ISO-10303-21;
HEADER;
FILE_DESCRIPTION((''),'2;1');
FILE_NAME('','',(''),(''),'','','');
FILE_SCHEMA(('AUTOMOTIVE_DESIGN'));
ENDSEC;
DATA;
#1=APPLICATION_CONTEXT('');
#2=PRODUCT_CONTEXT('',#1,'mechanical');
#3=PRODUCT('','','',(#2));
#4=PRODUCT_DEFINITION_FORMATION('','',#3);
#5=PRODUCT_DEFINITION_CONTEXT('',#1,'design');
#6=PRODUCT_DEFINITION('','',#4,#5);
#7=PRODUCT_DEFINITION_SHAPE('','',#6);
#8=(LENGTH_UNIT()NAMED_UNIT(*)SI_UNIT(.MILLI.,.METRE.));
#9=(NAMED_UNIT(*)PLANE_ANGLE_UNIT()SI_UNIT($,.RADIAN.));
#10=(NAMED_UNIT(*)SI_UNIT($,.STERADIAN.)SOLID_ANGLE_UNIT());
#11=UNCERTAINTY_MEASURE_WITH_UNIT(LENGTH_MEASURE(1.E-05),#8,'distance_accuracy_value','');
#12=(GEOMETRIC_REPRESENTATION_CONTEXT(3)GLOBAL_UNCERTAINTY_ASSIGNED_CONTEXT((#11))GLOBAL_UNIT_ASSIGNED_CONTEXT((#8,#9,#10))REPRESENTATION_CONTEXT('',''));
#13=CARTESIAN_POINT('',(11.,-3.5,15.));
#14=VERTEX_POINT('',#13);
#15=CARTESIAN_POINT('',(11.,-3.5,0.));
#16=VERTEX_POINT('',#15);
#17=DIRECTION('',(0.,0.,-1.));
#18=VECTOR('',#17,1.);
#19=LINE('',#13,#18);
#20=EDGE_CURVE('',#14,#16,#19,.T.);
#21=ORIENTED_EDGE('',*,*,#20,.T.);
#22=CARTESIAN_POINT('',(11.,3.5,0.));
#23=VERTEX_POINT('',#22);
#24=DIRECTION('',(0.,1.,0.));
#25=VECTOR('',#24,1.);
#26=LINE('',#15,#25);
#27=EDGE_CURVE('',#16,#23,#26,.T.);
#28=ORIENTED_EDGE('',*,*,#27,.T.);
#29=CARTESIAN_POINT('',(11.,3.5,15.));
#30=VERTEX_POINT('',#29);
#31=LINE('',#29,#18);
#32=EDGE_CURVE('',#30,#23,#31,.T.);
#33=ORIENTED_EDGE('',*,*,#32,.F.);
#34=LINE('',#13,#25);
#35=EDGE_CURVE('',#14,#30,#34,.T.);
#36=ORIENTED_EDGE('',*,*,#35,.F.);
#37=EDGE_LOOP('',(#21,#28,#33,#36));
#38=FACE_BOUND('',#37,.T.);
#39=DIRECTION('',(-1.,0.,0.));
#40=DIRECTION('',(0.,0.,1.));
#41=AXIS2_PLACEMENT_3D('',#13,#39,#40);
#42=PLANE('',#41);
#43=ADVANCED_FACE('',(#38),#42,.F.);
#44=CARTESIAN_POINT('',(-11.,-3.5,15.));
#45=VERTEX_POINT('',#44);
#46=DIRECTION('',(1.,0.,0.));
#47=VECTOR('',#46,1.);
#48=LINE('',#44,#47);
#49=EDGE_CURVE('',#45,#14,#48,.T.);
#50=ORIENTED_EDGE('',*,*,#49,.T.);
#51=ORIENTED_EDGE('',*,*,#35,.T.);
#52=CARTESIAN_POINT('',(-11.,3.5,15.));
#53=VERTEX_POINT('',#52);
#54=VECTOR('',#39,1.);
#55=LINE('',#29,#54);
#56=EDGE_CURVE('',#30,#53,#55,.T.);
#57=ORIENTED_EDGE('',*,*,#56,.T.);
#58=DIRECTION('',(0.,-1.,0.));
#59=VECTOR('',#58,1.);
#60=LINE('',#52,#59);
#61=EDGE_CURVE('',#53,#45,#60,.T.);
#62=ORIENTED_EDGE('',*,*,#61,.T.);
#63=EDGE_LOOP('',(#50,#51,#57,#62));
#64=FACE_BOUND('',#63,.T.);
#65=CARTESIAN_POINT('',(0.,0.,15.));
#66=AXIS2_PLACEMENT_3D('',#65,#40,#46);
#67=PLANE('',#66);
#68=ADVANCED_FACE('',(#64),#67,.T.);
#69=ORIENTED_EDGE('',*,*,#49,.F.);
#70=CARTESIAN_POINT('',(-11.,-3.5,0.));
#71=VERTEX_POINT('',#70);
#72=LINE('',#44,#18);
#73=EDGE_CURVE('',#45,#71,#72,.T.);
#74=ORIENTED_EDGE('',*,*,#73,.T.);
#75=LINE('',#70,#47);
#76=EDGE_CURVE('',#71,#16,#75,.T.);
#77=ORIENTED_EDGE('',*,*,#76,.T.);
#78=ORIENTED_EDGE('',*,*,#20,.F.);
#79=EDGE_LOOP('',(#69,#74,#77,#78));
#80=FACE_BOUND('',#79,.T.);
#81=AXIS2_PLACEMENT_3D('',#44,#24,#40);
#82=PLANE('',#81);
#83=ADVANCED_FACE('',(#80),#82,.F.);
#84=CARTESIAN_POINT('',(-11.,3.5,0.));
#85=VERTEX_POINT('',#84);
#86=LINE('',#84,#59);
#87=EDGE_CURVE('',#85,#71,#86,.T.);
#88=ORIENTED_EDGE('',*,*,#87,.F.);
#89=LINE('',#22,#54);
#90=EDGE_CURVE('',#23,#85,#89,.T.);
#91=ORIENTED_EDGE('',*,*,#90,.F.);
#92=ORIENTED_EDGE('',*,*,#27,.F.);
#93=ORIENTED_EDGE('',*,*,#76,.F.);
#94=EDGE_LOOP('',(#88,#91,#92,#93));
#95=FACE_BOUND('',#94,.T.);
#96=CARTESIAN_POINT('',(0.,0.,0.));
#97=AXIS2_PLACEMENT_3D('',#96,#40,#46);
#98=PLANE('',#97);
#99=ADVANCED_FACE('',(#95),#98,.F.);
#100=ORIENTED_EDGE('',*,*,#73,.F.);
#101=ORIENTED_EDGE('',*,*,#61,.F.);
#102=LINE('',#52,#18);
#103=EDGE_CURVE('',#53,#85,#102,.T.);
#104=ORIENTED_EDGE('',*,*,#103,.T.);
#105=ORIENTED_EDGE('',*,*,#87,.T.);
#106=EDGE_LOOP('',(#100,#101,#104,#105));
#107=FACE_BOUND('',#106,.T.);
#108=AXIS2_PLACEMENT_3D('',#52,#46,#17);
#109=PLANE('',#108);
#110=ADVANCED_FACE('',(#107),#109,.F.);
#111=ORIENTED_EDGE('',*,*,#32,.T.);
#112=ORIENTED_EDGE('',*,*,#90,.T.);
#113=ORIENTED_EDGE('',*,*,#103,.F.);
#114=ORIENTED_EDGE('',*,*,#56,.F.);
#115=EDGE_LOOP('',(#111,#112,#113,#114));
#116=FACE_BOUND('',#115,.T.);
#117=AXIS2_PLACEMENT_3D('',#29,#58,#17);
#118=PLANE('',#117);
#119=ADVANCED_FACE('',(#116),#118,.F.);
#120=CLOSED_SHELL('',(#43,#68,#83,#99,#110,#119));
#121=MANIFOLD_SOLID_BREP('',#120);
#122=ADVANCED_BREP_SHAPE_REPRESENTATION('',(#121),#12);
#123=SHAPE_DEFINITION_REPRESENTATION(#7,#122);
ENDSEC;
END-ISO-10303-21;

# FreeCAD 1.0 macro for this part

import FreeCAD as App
import Part
import Sketcher
from FreeCAD import Vector
Q = App.Units.Quantity

doc = App.newDocument("Part")
body = doc.addObject("PartDesign::Body", "Body")

sketch1 = body.newObject("Sketcher::SketchObject", "Sketch")
sketch1.AttachmentSupport = (doc.getObject("XY_Plane"), [""])
sketch1.MapMode = "FlatFace"
sketch1.addGeometry([
    Part.LineSegment(Vector(-11, 4, 0), Vector(-11, -4, 0)),
    Part.LineSegment(Vector(-11, -4, 0), Vector(11, -4, 0)),
    Part.LineSegment(Vector(11, -4, 0), Vector(11, 4, 0)),
    Part.LineSegment(Vector(11, 4, 0), Vector(-11, 4, 0)),
], False)
sketch1.addConstraint([
    Sketcher.Constraint("Coincident", 0, 2, 1, 1),
    Sketcher.Constraint("Coincident", 1, 2, 2, 1),
    Sketcher.Constraint("Coincident", 2, 2, 3, 1),
    Sketcher.Constraint("Coincident", 3, 2, 0, 1),
    Sketcher.Constraint("Vertical", 0),
    Sketcher.Constraint("Horizontal", 1),
    Sketcher.Constraint("Vertical", 2),
    Sketcher.Constraint("Horizontal", 3),
    Sketcher.Constraint("Symmetric", 0, 2, 2, 2, -1, 1),
    Sketcher.Constraint("DistanceX", 1, 1, 1, 2, Q("22 mm")),
    Sketcher.Constraint("DistanceY", 0, 2, 0, 1, Q("7 mm")),
])
pad1 = body.newObject("PartDesign::Pad", "Pad")
pad1.Profile = sketch1
pad1.Length = 15

doc.recompute()
